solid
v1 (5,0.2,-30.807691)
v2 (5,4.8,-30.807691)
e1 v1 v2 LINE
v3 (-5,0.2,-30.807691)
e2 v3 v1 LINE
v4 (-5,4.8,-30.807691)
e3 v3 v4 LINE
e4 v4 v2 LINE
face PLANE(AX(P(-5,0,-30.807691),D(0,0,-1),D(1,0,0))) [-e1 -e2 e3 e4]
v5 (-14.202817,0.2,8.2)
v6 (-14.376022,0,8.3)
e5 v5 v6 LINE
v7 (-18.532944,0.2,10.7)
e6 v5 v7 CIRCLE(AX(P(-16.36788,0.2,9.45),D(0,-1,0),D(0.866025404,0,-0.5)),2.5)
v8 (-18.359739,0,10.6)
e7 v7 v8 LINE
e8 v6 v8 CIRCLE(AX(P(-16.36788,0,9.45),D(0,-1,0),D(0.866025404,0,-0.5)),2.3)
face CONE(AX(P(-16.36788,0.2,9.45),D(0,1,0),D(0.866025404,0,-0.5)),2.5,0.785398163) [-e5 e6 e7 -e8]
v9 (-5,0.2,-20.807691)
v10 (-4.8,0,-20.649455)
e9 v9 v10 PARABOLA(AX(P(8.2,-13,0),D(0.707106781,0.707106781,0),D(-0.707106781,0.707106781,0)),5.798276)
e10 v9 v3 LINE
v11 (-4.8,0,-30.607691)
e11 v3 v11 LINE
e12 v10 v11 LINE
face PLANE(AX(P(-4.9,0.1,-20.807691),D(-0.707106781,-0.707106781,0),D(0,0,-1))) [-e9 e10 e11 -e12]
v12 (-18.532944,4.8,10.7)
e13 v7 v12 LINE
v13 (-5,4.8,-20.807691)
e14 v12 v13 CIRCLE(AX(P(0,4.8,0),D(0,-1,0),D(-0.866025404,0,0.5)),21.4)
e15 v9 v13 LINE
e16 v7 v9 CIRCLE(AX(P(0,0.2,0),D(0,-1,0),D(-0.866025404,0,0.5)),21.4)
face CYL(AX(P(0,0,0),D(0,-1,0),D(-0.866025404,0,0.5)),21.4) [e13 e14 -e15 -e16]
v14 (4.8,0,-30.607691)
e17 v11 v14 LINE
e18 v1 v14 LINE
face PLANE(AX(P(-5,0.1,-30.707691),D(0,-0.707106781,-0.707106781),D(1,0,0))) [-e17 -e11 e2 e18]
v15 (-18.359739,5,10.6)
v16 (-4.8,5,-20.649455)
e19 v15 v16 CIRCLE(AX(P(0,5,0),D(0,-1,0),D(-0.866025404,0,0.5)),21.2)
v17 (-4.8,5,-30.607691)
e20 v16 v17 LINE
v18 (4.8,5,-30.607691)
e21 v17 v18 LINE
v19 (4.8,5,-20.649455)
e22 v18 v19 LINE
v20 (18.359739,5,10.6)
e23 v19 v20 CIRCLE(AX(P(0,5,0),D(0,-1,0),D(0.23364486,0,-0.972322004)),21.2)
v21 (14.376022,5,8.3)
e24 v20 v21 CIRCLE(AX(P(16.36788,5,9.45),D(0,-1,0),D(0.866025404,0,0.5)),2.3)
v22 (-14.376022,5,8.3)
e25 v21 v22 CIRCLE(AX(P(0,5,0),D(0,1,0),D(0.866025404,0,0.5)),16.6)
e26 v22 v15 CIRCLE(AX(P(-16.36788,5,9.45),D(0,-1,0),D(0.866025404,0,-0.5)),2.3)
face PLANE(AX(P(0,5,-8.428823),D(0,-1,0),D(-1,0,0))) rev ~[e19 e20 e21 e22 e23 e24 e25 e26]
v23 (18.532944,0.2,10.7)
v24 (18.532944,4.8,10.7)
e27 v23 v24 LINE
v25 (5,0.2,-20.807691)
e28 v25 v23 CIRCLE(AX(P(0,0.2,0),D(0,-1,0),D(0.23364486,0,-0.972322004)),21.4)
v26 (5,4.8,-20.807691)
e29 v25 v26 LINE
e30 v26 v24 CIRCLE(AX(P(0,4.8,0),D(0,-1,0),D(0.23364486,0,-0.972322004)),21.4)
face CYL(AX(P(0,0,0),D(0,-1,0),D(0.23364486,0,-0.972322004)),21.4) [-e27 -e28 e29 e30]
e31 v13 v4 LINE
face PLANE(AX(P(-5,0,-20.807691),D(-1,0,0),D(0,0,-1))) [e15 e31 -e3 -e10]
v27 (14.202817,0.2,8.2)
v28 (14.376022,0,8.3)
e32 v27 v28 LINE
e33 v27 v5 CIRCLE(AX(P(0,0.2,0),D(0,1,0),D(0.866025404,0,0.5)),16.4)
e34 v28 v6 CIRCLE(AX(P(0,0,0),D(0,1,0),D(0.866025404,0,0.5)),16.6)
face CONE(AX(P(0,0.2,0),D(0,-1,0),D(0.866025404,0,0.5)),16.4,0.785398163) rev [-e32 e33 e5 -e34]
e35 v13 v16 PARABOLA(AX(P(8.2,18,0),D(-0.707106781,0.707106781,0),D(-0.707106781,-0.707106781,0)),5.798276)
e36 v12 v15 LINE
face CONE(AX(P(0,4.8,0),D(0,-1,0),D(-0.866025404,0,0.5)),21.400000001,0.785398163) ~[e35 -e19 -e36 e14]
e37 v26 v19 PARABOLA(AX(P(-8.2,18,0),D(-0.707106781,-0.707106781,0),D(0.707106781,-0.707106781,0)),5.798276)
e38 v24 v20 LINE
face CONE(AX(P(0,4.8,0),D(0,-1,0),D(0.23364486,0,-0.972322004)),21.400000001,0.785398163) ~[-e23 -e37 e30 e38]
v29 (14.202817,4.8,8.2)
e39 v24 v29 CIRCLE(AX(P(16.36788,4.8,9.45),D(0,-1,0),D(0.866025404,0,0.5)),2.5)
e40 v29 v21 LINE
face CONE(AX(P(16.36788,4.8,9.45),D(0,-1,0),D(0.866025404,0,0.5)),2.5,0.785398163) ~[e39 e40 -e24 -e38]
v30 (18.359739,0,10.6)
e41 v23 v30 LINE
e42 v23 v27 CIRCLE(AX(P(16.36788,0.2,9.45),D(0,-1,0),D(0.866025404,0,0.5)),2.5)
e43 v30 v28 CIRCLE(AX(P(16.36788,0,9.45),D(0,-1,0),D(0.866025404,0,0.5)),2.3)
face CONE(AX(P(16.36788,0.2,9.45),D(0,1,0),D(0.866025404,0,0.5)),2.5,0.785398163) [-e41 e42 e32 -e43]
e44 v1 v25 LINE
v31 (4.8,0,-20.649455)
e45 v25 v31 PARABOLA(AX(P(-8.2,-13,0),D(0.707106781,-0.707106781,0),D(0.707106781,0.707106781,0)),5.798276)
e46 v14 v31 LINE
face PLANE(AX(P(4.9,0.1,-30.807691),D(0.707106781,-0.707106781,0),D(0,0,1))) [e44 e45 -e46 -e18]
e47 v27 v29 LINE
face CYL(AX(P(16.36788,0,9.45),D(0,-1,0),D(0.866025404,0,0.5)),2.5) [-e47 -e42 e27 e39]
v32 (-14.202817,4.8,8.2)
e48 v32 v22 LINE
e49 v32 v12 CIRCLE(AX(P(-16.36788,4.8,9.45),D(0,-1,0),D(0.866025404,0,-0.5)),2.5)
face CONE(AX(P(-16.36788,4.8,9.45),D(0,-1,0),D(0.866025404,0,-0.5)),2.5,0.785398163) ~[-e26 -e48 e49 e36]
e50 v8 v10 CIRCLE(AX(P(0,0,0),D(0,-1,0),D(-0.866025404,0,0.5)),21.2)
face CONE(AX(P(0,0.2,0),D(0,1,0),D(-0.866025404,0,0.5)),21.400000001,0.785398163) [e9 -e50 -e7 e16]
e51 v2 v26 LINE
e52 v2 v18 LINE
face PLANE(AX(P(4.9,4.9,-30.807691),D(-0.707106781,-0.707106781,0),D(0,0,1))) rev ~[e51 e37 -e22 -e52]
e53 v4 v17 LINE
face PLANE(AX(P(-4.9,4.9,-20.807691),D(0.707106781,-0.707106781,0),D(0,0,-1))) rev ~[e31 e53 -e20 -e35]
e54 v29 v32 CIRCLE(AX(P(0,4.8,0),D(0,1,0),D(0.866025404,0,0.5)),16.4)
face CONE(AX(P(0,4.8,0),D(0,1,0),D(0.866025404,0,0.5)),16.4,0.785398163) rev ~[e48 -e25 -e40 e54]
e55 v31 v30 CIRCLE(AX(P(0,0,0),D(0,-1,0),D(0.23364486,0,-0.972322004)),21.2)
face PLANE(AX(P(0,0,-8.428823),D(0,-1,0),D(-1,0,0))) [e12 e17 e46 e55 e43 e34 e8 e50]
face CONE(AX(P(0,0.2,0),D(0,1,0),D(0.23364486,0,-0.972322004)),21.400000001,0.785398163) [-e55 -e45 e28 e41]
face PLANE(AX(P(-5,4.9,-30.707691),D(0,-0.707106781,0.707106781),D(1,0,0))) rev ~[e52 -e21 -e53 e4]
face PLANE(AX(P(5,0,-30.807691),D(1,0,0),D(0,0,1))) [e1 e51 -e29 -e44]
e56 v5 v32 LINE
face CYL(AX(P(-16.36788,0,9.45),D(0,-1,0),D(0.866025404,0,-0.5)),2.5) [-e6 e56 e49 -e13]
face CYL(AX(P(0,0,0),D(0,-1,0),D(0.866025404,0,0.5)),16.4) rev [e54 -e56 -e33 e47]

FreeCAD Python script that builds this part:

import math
import FreeCAD as App
import Part
import Sketcher
Q = App.Units.Quantity


def edges_at(feature, points):
    """Names of the edges that pass closest to the given points."""
    edges = feature.Shape.Edges
    near = lambda p: min(range(len(edges)), key=lambda i: edges[i].distToShape(Part.Vertex(*p))[0])
    return sorted({f"Edge{near(p) + 1}" for p in points})

doc = App.newDocument("Part")
body = doc.addObject("PartDesign::Body", "Body")

# Sketch on XZ plane
sketch1 = body.newObject("Sketcher::SketchObject", "Sketch")
sketch1.AttachmentSupport = (doc.getObject("XZ_Plane"), [""])
sketch1.MapMode = "FlatFace"
sketch1.addGeometry([
    Part.LineSegment(App.Vector(5, -30.8, 0), App.Vector(-5, -30.8, 0)),  # 0
    Part.LineSegment(App.Vector(-5, -30.8, 0), App.Vector(-5, -20.8, 0)),  # 1
    Part.ArcOfCircle(Part.Circle(App.Vector(0, 0, 0), App.Vector(0, 0, 1), 21.4), math.radians(150), math.radians(256)),  # 2
    Part.ArcOfCircle(Part.Circle(App.Vector(-16.4, 9.4, 0), App.Vector(0, 0, 1), 2.5), math.radians(-30), math.radians(150)),  # 3
    Part.ArcOfCircle(Part.Circle(App.Vector(0, 0, 0), App.Vector(0, 0, 1), 16.4), math.radians(150), math.radians(390)),  # 4
    Part.ArcOfCircle(Part.Circle(App.Vector(16.4, 9.4, 0), App.Vector(0, 0, 1), 2.5), math.radians(30), math.radians(210)),  # 5
    Part.ArcOfCircle(Part.Circle(App.Vector(0, 0, 0), App.Vector(0, 0, 1), 21.4), math.radians(-76), math.radians(30)),  # 6
    Part.LineSegment(App.Vector(5, -20.8, 0), App.Vector(5, -30.8, 0)),  # 7
], False)
sketch1.addConstraint([
    Sketcher.Constraint("Coincident", 0, 2, 1, 1),
    Sketcher.Constraint("Coincident", 1, 2, 2, 2),
    Sketcher.Constraint("Tangent", 2, 1, 3, 2),
    Sketcher.Constraint("Tangent", 3, 1, 4, 1),
    Sketcher.Constraint("Tangent", 4, 2, 5, 2),
    Sketcher.Constraint("Tangent", 5, 1, 6, 2),
    Sketcher.Constraint("Coincident", 6, 1, 7, 1),
    Sketcher.Constraint("Coincident", 7, 2, 0, 1),
    Sketcher.Constraint("Horizontal", 0),
    Sketcher.Constraint("Vertical", 1),
    Sketcher.Constraint("Vertical", 7),
    Sketcher.Constraint("Coincident", 2, 3, -1, 1),
    Sketcher.Constraint("Coincident", 4, 3, -1, 1),
    Sketcher.Constraint("Coincident", 6, 3, -1, 1),
    Sketcher.Constraint("Equal", 3, 5),
    Sketcher.Constraint("Horizontal", 3, 3, 5, 3),
    Sketcher.Constraint("Horizontal", 1, 2, 6, 1),
    Sketcher.Constraint("Equal", 0, 1),
    Sketcher.Constraint("Radius", 2, Q("21.4 mm")),
    Sketcher.Constraint("Radius", 3, Q("2.5 mm")),
    Sketcher.Constraint("DistanceX", 0, 2, 0, 1, Q("10 mm")),
    Sketcher.Constraint("DistanceY", -1, 1, 2, 1, Q("10.7 mm")),
])
pad1 = body.newObject("PartDesign::Pad", "Pad")
pad1.Profile = sketch1
pad1.Length = 5
pad1.Reversed = True
doc.recompute()

chamfer = body.newObject("PartDesign::Chamfer", "Chamfer")
chamfer.Base = (pad1, edges_at(pad1, [
    (15.118, 0, 11.615),
    (0, 0, -16.4),
    (-15.118, 0, 11.615),
    (-19.663, 0, -8.446),
    (0, 5, -16.4),
    (15.118, 5, 11.615),
    (19.663, 5, -8.446),
    (5, 5, -25.808),
    (0, 5, -30.808),
    (-5, 5, -25.808),
    (-19.663, 5, -8.446),
    (-5, 0, -25.808),
    (-15.118, 5, 11.615),
    (0, 0, -30.808),
    (5, 0, -25.808),
    (19.663, 0, -8.446),
]))
chamfer.Size = 0.2

doc.recompute()
